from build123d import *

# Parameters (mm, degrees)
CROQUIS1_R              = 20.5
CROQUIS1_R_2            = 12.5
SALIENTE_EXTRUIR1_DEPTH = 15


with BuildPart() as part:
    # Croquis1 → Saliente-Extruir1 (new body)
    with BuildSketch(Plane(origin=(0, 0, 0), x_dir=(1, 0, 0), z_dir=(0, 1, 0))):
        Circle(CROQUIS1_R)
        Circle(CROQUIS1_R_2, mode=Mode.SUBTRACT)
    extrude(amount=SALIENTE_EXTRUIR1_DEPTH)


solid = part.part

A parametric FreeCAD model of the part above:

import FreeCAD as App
import Part
import Sketcher

doc = App.newDocument("Part")
body = doc.addObject("PartDesign::Body", "Body")

sketch1 = body.newObject("Sketcher::SketchObject", "Sketch")
sketch1.AttachmentSupport = (doc.getObject("XZ_Plane"), [""])
sketch1.MapMode = "FlatFace"
sketch1.addGeometry(Part.Circle(App.Vector(0, 0, 0), App.Vector(0, 0, 1), 20.5), False)
sketch1.addGeometry(Part.Circle(App.Vector(0, 0, 0), App.Vector(0, 0, 1), 12.5), False)
sketch1.addConstraint(Sketcher.Constraint("Coincident", 0, 3, -1, 1))
sketch1.addConstraint(Sketcher.Constraint("Coincident", 1, 3, -1, 1))
sketch1.addConstraint(Sketcher.Constraint("Diameter", 0, 41.0))
sketch1.addConstraint(Sketcher.Constraint("Diameter", 1, 25.0))
pad1 = body.newObject("PartDesign::Pad", "Pad")
pad1.Profile = sketch1
pad1.Length = 15
pad1.Reversed = True

doc.recompute()
